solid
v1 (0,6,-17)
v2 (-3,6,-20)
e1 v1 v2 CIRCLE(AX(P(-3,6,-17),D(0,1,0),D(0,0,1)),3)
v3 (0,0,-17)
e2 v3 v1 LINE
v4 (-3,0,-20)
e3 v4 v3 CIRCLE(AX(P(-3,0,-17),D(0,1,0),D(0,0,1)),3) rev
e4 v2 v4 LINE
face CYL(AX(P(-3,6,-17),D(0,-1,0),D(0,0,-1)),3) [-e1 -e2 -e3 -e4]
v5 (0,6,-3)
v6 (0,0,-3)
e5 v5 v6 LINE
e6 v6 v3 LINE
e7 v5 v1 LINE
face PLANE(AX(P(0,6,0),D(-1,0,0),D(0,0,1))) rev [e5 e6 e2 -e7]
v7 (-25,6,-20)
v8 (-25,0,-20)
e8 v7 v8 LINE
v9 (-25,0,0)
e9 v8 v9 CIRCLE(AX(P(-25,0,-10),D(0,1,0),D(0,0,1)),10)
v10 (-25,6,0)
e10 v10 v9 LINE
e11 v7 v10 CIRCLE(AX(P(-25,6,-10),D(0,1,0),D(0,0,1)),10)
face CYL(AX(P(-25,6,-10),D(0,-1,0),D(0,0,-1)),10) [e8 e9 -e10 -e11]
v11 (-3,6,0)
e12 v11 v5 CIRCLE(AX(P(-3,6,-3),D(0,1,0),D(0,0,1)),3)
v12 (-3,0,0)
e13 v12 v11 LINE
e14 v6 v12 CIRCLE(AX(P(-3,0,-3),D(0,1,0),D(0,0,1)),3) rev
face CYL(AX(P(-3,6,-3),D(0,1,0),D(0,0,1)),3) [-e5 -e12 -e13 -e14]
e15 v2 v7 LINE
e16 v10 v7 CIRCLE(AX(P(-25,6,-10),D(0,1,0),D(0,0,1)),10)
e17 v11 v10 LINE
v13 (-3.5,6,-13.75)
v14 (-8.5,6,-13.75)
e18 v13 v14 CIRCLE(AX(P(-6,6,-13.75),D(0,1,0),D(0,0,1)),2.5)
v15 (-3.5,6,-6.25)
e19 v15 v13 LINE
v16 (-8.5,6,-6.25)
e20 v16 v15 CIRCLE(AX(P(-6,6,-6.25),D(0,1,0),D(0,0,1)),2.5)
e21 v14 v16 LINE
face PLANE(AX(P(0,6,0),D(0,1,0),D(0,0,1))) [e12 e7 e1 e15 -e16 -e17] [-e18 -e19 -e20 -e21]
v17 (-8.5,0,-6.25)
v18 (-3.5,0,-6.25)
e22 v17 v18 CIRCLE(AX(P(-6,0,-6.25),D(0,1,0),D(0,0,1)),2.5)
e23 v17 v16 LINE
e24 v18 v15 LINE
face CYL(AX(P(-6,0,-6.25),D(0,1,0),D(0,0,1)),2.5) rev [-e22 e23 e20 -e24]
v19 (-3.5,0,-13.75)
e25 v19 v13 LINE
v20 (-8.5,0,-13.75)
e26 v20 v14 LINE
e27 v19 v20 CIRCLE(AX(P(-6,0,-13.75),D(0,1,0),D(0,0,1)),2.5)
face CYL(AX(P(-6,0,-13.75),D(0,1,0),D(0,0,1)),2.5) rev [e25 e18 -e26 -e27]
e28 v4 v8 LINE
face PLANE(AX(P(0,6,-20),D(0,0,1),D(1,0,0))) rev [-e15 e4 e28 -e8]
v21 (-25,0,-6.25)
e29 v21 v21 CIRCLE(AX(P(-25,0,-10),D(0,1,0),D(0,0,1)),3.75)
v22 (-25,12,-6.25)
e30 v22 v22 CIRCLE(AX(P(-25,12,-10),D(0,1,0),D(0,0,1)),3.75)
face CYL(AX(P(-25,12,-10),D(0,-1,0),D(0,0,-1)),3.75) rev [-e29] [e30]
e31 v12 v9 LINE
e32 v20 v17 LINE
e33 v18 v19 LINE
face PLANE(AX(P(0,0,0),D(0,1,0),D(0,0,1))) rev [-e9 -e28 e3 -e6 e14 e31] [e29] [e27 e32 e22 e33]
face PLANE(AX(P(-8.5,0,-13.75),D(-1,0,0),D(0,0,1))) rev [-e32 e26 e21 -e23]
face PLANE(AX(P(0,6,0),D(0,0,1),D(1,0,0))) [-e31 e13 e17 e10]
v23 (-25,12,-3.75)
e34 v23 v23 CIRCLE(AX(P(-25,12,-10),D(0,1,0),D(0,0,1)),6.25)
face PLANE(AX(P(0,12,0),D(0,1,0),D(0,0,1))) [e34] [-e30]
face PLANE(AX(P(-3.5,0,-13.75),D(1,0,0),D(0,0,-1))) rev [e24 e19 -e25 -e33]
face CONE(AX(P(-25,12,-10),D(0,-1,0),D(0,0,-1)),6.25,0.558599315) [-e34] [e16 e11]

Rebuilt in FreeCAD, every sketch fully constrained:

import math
import FreeCAD as App
import Part
import Sketcher
from FreeCAD import Vector
Q = App.Units.Quantity


def edges_at(feature, points):
    """Names of the edges that pass closest to the given points."""
    edges = feature.Shape.Edges
    near = lambda p: min(range(len(edges)), key=lambda i: edges[i].distToShape(Part.Vertex(*p))[0])
    return sorted({f"Edge{near(p) + 1}" for p in points})


def add_polygon(sketch, points):
    """Adds a closed chain of lines whose ends are joined by coincident constraints."""
    first, n = sketch.GeometryCount, len(points)
    for a, b in zip(points, points[1:] + points[:1]):
        sketch.addGeometry(Part.LineSegment(App.Vector(*a, 0), App.Vector(*b, 0)), False)
    for i in range(n):
        sketch.addConstraint(Sketcher.Constraint("Coincident", first + i, 2, first + (i + 1) % n, 1))

doc = App.newDocument("Part")
body = doc.addObject("PartDesign::Body", "Body")

# Sketch on XZ plane
sketch1 = body.newObject("Sketcher::SketchObject", "Sketch")
sketch1.AttachmentSupport = (doc.getObject("XZ_Plane"), [""])
sketch1.MapMode = "FlatFace"
sketch1.addGeometry(Part.ArcOfCircle(Part.Circle(Vector(-25, -10, 0), Vector(0, 0, 1), 10), math.radians(90), math.radians(270)), False)
sketch1.addGeometry(Part.LineSegment(Vector(-25, 0, 0), Vector(0, 0, 0)), False)
sketch1.addGeometry(Part.LineSegment(Vector(0, 0, 0), Vector(0, -20, 0)), False)
sketch1.addGeometry(Part.LineSegment(Vector(0, -20, 0), Vector(-25, -20, 0)), False)
sketch1.addConstraint(Sketcher.Constraint("Tangent", 0, 1, 1, 1))
sketch1.addConstraint(Sketcher.Constraint("Coincident", 1, 2, 2, 1))
sketch1.addConstraint(Sketcher.Constraint("Coincident", 2, 2, 3, 1))
sketch1.addConstraint(Sketcher.Constraint("Tangent", 3, 2, 0, 2))
sketch1.addConstraint(Sketcher.Constraint("Horizontal", 1))
sketch1.addConstraint(Sketcher.Constraint("Vertical", 2))
sketch1.addConstraint(Sketcher.Constraint("Horizontal", 3))
sketch1.addConstraint(Sketcher.Constraint("Coincident", 1, 2, -1, 1))
sketch1.addConstraint(Sketcher.Constraint("Radius", 0, Q("10 mm")))
sketch1.addConstraint(Sketcher.Constraint("DistanceX", 1, 1, 1, 2, Q("25 mm")))
pad1 = body.newObject("PartDesign::Pad", "Pad")
pad1.Profile = sketch1
pad1.Length = 6
pad1.Reversed = True

# Sketch on XZ plane
sketch2 = body.newObject("Sketcher::SketchObject", "Sketch001")
sketch2.AttachmentSupport = (doc.getObject("XZ_Plane"), [""])
sketch2.MapMode = "FlatFace"
sketch2.AttachmentOffset = App.Placement(Vector(0, 0, -6), App.Rotation())
sketch2.addGeometry(Part.Circle(Vector(-25, -10, 0), Vector(0, 0, 1), 6.2), False)
sketch2.addGeometry(Part.Circle(Vector(-25, -10, 0), Vector(0, 0, 1), 3.8), False)
sketch2.addConstraint(Sketcher.Constraint("Coincident", 1, 3, 0, 3))
sketch2.addConstraint(Sketcher.Constraint("Diameter", 0, Q("12.5 mm")))
sketch2.addConstraint(Sketcher.Constraint("Diameter", 1, Q("7.5 mm")))
sketch2.addConstraint(Sketcher.Constraint("DistanceX", 0, 3, -1, 1, Q("25 mm")))
sketch2.addConstraint(Sketcher.Constraint("DistanceY", 0, 3, -1, 1, Q("10 mm")))
pad2 = body.newObject("PartDesign::Pad", "Pad001")
pad2.Profile = sketch2
pad2.Length = 6
pad2.Reversed = True

# Sketch on XZ plane
sketch3 = body.newObject("Sketcher::SketchObject", "Sketch002")
sketch3.AttachmentSupport = (doc.getObject("XZ_Plane"), [""])
sketch3.MapMode = "FlatFace"
sketch3.AttachmentOffset = App.Placement(Vector(0, 0, -6), App.Rotation())
sketch3.addGeometry(Part.LineSegment(Vector(-3.5, -6.2, 0), Vector(-3.5, -13.8, 0)), False)
sketch3.addGeometry(Part.ArcOfCircle(Part.Circle(Vector(-6, -13.8, 0), Vector(0, 0, 1), 2.5), math.radians(180), math.radians(360)), False)
sketch3.addGeometry(Part.LineSegment(Vector(-8.5, -13.8, 0), Vector(-8.5, -6.2, 0)), False)
sketch3.addGeometry(Part.ArcOfCircle(Part.Circle(Vector(-6, -6.2, 0), Vector(0, 0, 1), 2.5), math.radians(0), math.radians(180)), False)
sketch3.addConstraint(Sketcher.Constraint("Tangent", 0, 2, 1, 2))
sketch3.addConstraint(Sketcher.Constraint("Tangent", 1, 1, 2, 1))
sketch3.addConstraint(Sketcher.Constraint("Tangent", 2, 2, 3, 2))
sketch3.addConstraint(Sketcher.Constraint("Tangent", 3, 1, 0, 1))
sketch3.addConstraint(Sketcher.Constraint("Vertical", 0))
sketch3.addConstraint(Sketcher.Constraint("Vertical", 2))
sketch3.addConstraint(Sketcher.Constraint("Radius", 1, Q("2.5 mm")))
sketch3.addConstraint(Sketcher.Constraint("DistanceY", 0, 2, 0, 1, Q("7.5 mm")))
sketch3.addConstraint(Sketcher.Constraint("DistanceX", 1, 3, -1, 1, Q("6 mm")))
sketch3.addConstraint(Sketcher.Constraint("DistanceY", 1, 3, -1, 1, Q("13.75 mm")))
pocket1 = body.newObject("PartDesign::Pocket", "Pocket")
pocket1.Profile = sketch3
pocket1.Length = 6
pocket1.Reversed = True

# Sketch on XZ plane
sketch4 = body.newObject("Sketcher::SketchObject", "Sketch003")
sketch4.AttachmentSupport = (doc.getObject("XZ_Plane"), [""])
sketch4.MapMode = "FlatFace"
sketch4.AttachmentOffset = App.Placement(Vector(0, 0, -6), App.Rotation())
sketch4.addGeometry(Part.Circle(Vector(-25, -10, 0), Vector(0, 0, 1), 3.8), False)
sketch4.addConstraint(Sketcher.Constraint("Diameter", 0, Q("7.5 mm")))
sketch4.addConstraint(Sketcher.Constraint("DistanceX", 0, 3, -1, 1, Q("25 mm")))
sketch4.addConstraint(Sketcher.Constraint("DistanceY", 0, 3, -1, 1, Q("10 mm")))
pocket2 = body.newObject("PartDesign::Pocket", "Pocket001")
pocket2.Profile = sketch4
pocket2.Length = 6
pocket2.Reversed = True
doc.recompute()

fillet = body.newObject("PartDesign::Fillet", "Fillet")
fillet.Base = (pocket2, edges_at(pocket2, [(0, 3, 0)]))
fillet.Radius = 3
doc.recompute()

fillet2 = body.newObject("PartDesign::Fillet", "Fillet001")
fillet2.Base = (fillet, edges_at(fillet, [(0, 3, -20)]))
fillet2.Radius = 3

# Sketch on YZ plane
sketch5 = body.newObject("Sketcher::SketchObject", "Sketch004")
sketch5.AttachmentSupport = (doc.getObject("YZ_Plane"), [""])
sketch5.MapMode = "FlatFace"
sketch5.AttachmentOffset = App.Placement(Vector(0, 0, -25), App.Rotation())
add_polygon(sketch5, [(12, -3.8), (6, 0), (6, -3.8)])  # lines 0-2
sketch5.addGeometry(Part.LineSegment(Vector(12, -10, 0), Vector(6, -10, 0)), True)  # axis
sketch5.addConstraint(Sketcher.Constraint("Vertical", 1))
sketch5.addConstraint(Sketcher.Constraint("Horizontal", 2))
sketch5.addConstraint(Sketcher.Constraint("Horizontal", 3))
sketch5.addConstraint(Sketcher.Constraint("PointOnObject", 0, 2, -1))
sketch5.addConstraint(Sketcher.Constraint("Vertical", 2, 2, 3, 1))
sketch5.addConstraint(Sketcher.Constraint("Vertical", 1, 2, 3, 2))
sketch5.addConstraint(Sketcher.Constraint("DistanceX", 2, 1, 2, 2, Q("6 mm")))
sketch5.addConstraint(Sketcher.Constraint("DistanceX", -1, 1, 0, 2, Q("6 mm")))
sketch5.addConstraint(Sketcher.Constraint("DistanceY", 3, 1, -1, 1, Q("10 mm")))
sketch5.addConstraint(Sketcher.Constraint("DistanceY", 1, 2, 1, 1, Q("3.75 mm")))
revolution = body.newObject("PartDesign::Revolution", "Revolution")
revolution.Profile = sketch5
revolution.ReferenceAxis = (sketch5, ["Axis0"])
revolution.Angle = 360

doc.recompute()
